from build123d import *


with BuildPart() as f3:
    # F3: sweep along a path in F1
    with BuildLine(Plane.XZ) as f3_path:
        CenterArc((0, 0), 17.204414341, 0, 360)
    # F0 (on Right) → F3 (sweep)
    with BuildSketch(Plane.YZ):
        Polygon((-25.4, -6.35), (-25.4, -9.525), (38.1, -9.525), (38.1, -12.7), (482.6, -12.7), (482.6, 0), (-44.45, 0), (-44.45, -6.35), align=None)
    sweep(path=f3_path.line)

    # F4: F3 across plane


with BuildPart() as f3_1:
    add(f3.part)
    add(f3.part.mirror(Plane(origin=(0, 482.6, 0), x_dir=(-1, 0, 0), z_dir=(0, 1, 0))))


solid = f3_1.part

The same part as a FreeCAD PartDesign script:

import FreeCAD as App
import Part
import Sketcher
from FreeCAD import Vector
Q = App.Units.Quantity


def add_polygon(sketch, points):
    """Adds a closed chain of lines whose ends are joined by coincident constraints."""
    first, n = sketch.GeometryCount, len(points)
    for a, b in zip(points, points[1:] + points[:1]):
        sketch.addGeometry(Part.LineSegment(App.Vector(*a, 0), App.Vector(*b, 0)), False)
    for i in range(n):
        sketch.addConstraint(Sketcher.Constraint("Coincident", first + i, 2, first + (i + 1) % n, 1))

doc = App.newDocument("Part")
body = doc.addObject("PartDesign::Body", "Body")

# Sketch on YZ plane
sketch1 = body.newObject("Sketcher::SketchObject", "Sketch")
sketch1.AttachmentSupport = (doc.getObject("YZ_Plane"), [""])
sketch1.MapMode = "FlatFace"
add_polygon(sketch1, [(-25.4, -6.35), (-25.4, -9.525), (38.1, -9.525), (38.1, -12.7), (482.6, -12.7), (482.6, 0), (-44.45, 0), (-44.45, -6.35)])  # lines 0-7
sketch1.addConstraint([
    Sketcher.Constraint("Vertical", 0),
    Sketcher.Constraint("Horizontal", 1),
    Sketcher.Constraint("Vertical", 2),
    Sketcher.Constraint("Horizontal", 3),
    Sketcher.Constraint("Vertical", 4),
    Sketcher.Constraint("Horizontal", 5),
    Sketcher.Constraint("Vertical", 6),
    Sketcher.Constraint("Horizontal", 7),
    Sketcher.Constraint("PointOnObject", 4, 2, -1),
    Sketcher.Constraint("Equal", 0, 2),
    Sketcher.Constraint("DistanceX", 1, 1, 1, 2, Q("2.5 in")),
    Sketcher.Constraint("DistanceX", 3, 1, 3, 2, Q("17.5 in")),
    Sketcher.Constraint("DistanceY", 4, 1, 4, 2, Q("0.5 in")),
    Sketcher.Constraint("DistanceX", 0, 2, -1, 1, Q("1 in")),
    Sketcher.Constraint("DistanceX", 5, 2, 5, 1, Q("20.75 in")),
    Sketcher.Constraint("DistanceY", 6, 2, 6, 1, Q("0.25 in")),
])

# Sketch on XZ plane
sketch2 = body.newObject("Sketcher::SketchObject", "Sketch001")
sketch2.AttachmentSupport = (doc.getObject("XZ_Plane"), [""])
sketch2.MapMode = "FlatFace"
sketch2.addGeometry(Part.Circle(Vector(0, 0, 0), Vector(0, 0, 1), 17.204414), False)
sketch2.addConstraint([
    Sketcher.Constraint("Coincident", 0, 3, -1, 1),
    Sketcher.Constraint("Diameter", 0, 34.408829),
])
doc.recompute()

additivepipe = body.newObject("PartDesign::AdditivePipe", "AdditivePipe")
additivepipe.Profile = sketch1
additivepipe.Spine = (sketch2, ["Edge1"])
body2 = doc.addObject("PartDesign::Body", "Body001")
doc.recompute()

body2.BaseFeature = body
doc.recompute()

mirroring = doc.addObject("Part::Mirroring", "Mirroring")
mirroring.Source = body
mirroring.Base = Vector(0, 482.6, 0)
mirroring.Normal = Vector(0, 1, 0)
body3 = doc.addObject("PartDesign::Body", "Body002")
body3.BaseFeature = mirroring
boolean = body2.newObject("PartDesign::Boolean", "Boolean")
boolean.Type = "Fuse"
boolean.addObjects([body3])
doc.recompute()
mirroring.Visibility = False

doc.recompute()
